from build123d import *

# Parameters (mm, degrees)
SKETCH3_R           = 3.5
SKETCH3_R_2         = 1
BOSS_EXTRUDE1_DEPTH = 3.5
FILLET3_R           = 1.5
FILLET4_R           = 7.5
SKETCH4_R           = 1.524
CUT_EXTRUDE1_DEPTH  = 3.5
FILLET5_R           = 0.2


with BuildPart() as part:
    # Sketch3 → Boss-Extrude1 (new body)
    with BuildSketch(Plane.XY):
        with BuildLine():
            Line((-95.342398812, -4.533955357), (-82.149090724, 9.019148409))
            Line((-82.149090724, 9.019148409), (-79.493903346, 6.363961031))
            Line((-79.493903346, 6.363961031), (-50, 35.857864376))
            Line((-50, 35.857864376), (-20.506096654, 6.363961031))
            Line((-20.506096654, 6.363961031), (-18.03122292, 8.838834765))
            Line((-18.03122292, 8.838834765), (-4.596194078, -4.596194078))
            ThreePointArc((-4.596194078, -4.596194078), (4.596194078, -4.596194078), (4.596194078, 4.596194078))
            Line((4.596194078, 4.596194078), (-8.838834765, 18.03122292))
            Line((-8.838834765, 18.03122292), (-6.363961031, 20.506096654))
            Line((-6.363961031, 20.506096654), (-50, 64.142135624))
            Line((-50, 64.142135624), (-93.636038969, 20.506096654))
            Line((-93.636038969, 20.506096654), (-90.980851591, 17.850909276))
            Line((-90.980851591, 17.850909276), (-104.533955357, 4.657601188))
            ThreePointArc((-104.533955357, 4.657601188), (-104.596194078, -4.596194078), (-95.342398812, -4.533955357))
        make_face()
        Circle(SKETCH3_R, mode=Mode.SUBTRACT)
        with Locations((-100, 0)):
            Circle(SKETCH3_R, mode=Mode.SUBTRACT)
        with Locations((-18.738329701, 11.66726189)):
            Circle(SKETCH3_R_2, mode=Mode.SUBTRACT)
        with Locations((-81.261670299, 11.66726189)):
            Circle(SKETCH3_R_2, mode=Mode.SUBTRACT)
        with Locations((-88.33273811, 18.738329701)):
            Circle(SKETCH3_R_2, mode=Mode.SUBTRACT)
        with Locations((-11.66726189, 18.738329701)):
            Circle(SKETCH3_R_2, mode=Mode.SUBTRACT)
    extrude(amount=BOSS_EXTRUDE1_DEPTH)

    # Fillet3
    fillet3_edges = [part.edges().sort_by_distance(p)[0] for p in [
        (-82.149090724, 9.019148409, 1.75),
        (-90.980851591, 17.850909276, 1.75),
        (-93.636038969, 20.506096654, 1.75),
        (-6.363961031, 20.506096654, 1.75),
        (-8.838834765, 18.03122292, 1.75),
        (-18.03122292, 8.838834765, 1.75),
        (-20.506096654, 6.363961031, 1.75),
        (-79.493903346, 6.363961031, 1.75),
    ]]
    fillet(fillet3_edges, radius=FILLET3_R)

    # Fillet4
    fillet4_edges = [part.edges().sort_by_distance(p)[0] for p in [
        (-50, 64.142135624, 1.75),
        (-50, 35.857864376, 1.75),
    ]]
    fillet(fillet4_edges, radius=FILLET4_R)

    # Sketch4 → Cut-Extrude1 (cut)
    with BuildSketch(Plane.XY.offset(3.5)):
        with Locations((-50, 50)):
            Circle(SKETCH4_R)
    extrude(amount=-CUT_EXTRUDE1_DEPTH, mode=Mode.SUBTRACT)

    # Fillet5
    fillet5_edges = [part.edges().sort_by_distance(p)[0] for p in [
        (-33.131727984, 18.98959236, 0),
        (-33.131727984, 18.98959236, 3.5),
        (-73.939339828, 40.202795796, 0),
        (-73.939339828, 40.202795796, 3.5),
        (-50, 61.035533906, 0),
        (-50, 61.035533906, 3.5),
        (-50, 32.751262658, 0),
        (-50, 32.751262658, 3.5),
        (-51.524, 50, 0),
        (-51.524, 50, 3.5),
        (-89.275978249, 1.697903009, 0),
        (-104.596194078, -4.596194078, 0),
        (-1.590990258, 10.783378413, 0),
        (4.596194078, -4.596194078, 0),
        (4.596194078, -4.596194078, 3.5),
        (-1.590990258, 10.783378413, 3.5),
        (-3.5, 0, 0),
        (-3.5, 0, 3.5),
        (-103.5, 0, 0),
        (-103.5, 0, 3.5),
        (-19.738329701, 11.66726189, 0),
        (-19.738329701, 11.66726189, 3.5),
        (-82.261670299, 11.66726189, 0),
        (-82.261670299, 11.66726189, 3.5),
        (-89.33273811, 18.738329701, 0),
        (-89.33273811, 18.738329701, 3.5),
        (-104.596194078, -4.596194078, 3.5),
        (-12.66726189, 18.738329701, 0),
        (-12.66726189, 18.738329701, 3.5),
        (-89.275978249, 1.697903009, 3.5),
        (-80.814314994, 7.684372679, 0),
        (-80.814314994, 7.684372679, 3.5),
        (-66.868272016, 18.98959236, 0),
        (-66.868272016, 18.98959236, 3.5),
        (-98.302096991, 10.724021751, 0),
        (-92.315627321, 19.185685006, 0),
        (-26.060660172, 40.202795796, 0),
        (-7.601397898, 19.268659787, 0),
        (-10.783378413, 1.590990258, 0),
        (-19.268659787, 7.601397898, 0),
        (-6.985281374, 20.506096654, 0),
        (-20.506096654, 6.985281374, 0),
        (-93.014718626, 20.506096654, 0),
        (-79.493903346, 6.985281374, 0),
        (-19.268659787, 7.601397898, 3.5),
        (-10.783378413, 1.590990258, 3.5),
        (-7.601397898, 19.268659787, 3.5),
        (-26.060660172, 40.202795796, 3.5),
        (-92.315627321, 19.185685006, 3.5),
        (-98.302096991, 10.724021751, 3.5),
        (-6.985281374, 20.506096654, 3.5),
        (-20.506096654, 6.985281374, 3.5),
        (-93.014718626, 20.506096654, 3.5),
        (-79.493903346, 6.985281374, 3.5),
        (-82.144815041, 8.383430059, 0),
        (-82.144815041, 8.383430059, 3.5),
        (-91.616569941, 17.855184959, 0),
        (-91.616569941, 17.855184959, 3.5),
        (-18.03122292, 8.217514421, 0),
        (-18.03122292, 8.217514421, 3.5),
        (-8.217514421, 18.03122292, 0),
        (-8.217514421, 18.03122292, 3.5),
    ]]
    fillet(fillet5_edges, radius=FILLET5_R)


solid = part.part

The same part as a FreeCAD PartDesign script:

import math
import FreeCAD as App
import Part
import Sketcher

V = App.Vector


def edges_at(feature, points):
    """Names of the edges that pass closest to the given points."""
    edges = feature.Shape.Edges
    near = lambda p: min(range(len(edges)), key=lambda i: edges[i].distToShape(Part.Vertex(*p))[0])
    return sorted({f"Edge{near(p) + 1}" for p in points})

doc = App.newDocument("Part")
body = doc.addObject("PartDesign::Body", "Body")

# Sketch on XY plane
sketch1 = doc.addObject("Sketcher::SketchObject", "Sketch")
body.addObject(sketch1)
sketch1.AttachmentSupport = (doc.XY_Plane, [""])
sketch1.MapMode = "FlatFace"
sketch1.addGeometry([
    Part.LineSegment(V(-95.3, -4.5, 0), V(-82.1, 9, 0)),  # 0
    Part.LineSegment(V(-82.1, 9, 0), V(-79.5, 6.4, 0)),  # 1
    Part.LineSegment(V(-79.5, 6.4, 0), V(-50, 35.9, 0)),  # 2
    Part.LineSegment(V(-50, 35.9, 0), V(-20.5, 6.4, 0)),  # 3
    Part.LineSegment(V(-20.5, 6.4, 0), V(-18, 8.8, 0)),  # 4
    Part.LineSegment(V(-18, 8.8, 0), V(-4.6, -4.6, 0)),  # 5
    Part.ArcOfCircle(Part.Circle(V(0, 0, 0), V(0, 0, 1), 6.5), math.radians(-135), math.radians(45)),  # 6
    Part.LineSegment(V(4.6, 4.6, 0), V(-8.8, 18, 0)),  # 7
    Part.LineSegment(V(-8.8, 18, 0), V(-6.4, 20.5, 0)),  # 8
    Part.LineSegment(V(-6.4, 20.5, 0), V(-50, 64.1, 0)),  # 9
    Part.LineSegment(V(-50, 64.1, 0), V(-93.6, 20.5, 0)),  # 10
    Part.LineSegment(V(-93.6, 20.5, 0), V(-91, 17.9, 0)),  # 11
    Part.LineSegment(V(-91, 17.9, 0), V(-104.5, 4.7, 0)),  # 12
    Part.ArcOfCircle(Part.Circle(V(-100, 0, 0), V(0, 0, 1), 6.5), math.radians(134), math.radians(316)),  # 13
    Part.Circle(V(-100, 0, 0), V(0, 0, 1), 3.5),  # 14
    Part.Circle(V(0, 0, 0), V(0, 0, 1), 3.5),  # 15
    Part.Circle(V(-81.3, 11.7, 0), V(0, 0, 1), 1),  # 16
    Part.Circle(V(-88.3, 18.7, 0), V(0, 0, 1), 1),  # 17
    Part.Circle(V(-18.7, 11.7, 0), V(0, 0, 1), 1),  # 18
    Part.Circle(V(-11.7, 18.7, 0), V(0, 0, 1), 1),  # 19
], False)
sketch1.addConstraint([
    Sketcher.Constraint("Coincident", 0, 2, 1, 1),
    Sketcher.Constraint("Coincident", 1, 2, 2, 1),
    Sketcher.Constraint("Coincident", 2, 2, 3, 1),
    Sketcher.Constraint("Coincident", 3, 2, 4, 1),
    Sketcher.Constraint("Coincident", 4, 2, 5, 1),
    Sketcher.Constraint("Tangent", 5, 2, 6, 1),
    Sketcher.Constraint("Tangent", 6, 2, 7, 1),
    Sketcher.Constraint("Coincident", 7, 2, 8, 1),
    Sketcher.Constraint("Coincident", 8, 2, 9, 1),
    Sketcher.Constraint("Coincident", 9, 2, 10, 1),
    Sketcher.Constraint("Coincident", 10, 2, 11, 1),
    Sketcher.Constraint("Coincident", 11, 2, 12, 1),
    Sketcher.Constraint("Tangent", 12, 2, 13, 1),
    Sketcher.Constraint("Tangent", 13, 2, 0, 1),
    Sketcher.Constraint("Coincident", 6, 3, -1, 1),
    Sketcher.Constraint("Coincident", 15, 3, -1, 1),
    Sketcher.Constraint("Coincident", 14, 3, 13, 3),
    Sketcher.Constraint("Equal", 6, 13),
    Sketcher.Constraint("Equal", 14, 15),
    Sketcher.Constraint("Equal", 16, 17),
    Sketcher.Constraint("Equal", 17, 18),
    Sketcher.Constraint("Equal", 18, 19),
    Sketcher.Constraint("PointOnObject", 13, 3, -1),
    Sketcher.Constraint("Perpendicular", 1, 2),
    Sketcher.Constraint("Perpendicular", 2, 3),
    Sketcher.Constraint("Perpendicular", 3, 4),
    Sketcher.Constraint("Perpendicular", 4, 5),
    Sketcher.Constraint("Parallel", 5, 7),
    Sketcher.Constraint("Perpendicular", 7, 8),
    Sketcher.Constraint("Perpendicular", 8, 9),
    Sketcher.Constraint("Perpendicular", 9, 10),
    Sketcher.Constraint("Perpendicular", 10, 11),
    Sketcher.Constraint("Horizontal", 16, 3, 18, 3),
    Sketcher.Constraint("Horizontal", 17, 3, 19, 3),
    Sketcher.Constraint("Horizontal", 1, 2, 3, 2),
    Sketcher.Constraint("Horizontal", 8, 2, 10, 2),
    Sketcher.Constraint("Vertical", 2, 2, 9, 2),
    Sketcher.Constraint("Equal", 2, 3),
    Sketcher.Constraint("Equal", 5, 7),
    Sketcher.Constraint("Equal", 4, 8),
    Sketcher.Constraint("Equal", 1, 11),
    Sketcher.Constraint("Equal", 0, 12),
    Sketcher.Constraint("Diameter", 14, 7.0),
    Sketcher.Constraint("Diameter", 16, 2.0),
    Sketcher.Constraint("Radius", 6, 6.5),
    Sketcher.Constraint("Distance", 5, 19.0),
    Sketcher.Constraint("DistanceX", 13, 3, -1, 1, 100.0),
    Sketcher.Constraint("Distance", 4, 3.5),
    Sketcher.Constraint("DistanceY", -1, 1, 12, 2, 4.657601),
    Sketcher.Constraint("DistanceY", 1, 2, 16, 3, 5.303301),
    Sketcher.Constraint("DistanceX", 19, 3, 8, 2, 5.303301),
    Sketcher.Constraint("DistanceX", 10, 2, 17, 3, 5.303301),
    Sketcher.Constraint("DistanceX", 16, 3, -1, 1, 81.26167),
    Sketcher.Constraint("DistanceY", -1, 1, 17, 3, 18.73833),
    Sketcher.Constraint("DistanceX", 18, 3, -1, 1, 18.73833),
])
pad1 = doc.addObject("PartDesign::Pad", "Pad")
body.addObject(pad1)
pad1.Profile = sketch1
pad1.Length = 3.5
doc.recompute()

fillet = doc.addObject("PartDesign::Fillet", "Fillet")
body.addObject(fillet)
fillet.Base = (pad1, edges_at(pad1, [
    (-82.149, 9.019, 1.75),
    (-90.981, 17.851, 1.75),
    (-93.636, 20.506, 1.75),
    (-6.364, 20.506, 1.75),
    (-8.839, 18.031, 1.75),
    (-18.031, 8.839, 1.75),
    (-20.506, 6.364, 1.75),
    (-79.494, 6.364, 1.75),
]))
fillet.Radius = 1.5
doc.recompute()

fillet2 = doc.addObject("PartDesign::Fillet", "Fillet001")
body.addObject(fillet2)
fillet2.Base = (fillet, edges_at(fillet, [(-50, 64.142, 1.75), (-50, 35.858, 1.75)]))
fillet2.Radius = 7.5

# Sketch on XY plane
sketch2 = doc.addObject("Sketcher::SketchObject", "Sketch001")
body.addObject(sketch2)
sketch2.AttachmentSupport = (doc.XY_Plane, [""])
sketch2.MapMode = "FlatFace"
sketch2.AttachmentOffset = App.Placement(V(0, 0, 3.5), App.Rotation())
sketch2.addGeometry(Part.Circle(V(-50, 50, 0), V(0, 0, 1), 1.5), False)
sketch2.addConstraint([
    Sketcher.Constraint("Diameter", 0, 3.048),
    Sketcher.Constraint("DistanceX", 0, 3, -1, 1, 50.0),
    Sketcher.Constraint("DistanceY", -1, 1, 0, 3, 50.0),
])
pocket1 = doc.addObject("PartDesign::Pocket", "Pocket")
body.addObject(pocket1)
pocket1.Profile = sketch2
pocket1.Length = 3.5
doc.recompute()

fillet3 = doc.addObject("PartDesign::Fillet", "Fillet002")
body.addObject(fillet3)
fillet3.Base = (pocket1, edges_at(pocket1, [
    (-33.132, 18.99, 0),
    (-33.132, 18.99, 3.5),
    (-73.939, 40.203, 0),
    (-73.939, 40.203, 3.5),
    (-50, 61.036, 0),
    (-50, 61.036, 3.5),
    (-50, 32.751, 0),
    (-50, 32.751, 3.5),
    (-51.524, 50, 0),
    (-51.524, 50, 3.5),
    (-89.276, 1.698, 0),
    (-104.596, -4.596, 0),
    (-1.591, 10.783, 0),
    (4.596, -4.596, 0),
    (4.596, -4.596, 3.5),
    (-1.591, 10.783, 3.5),
    (-3.5, 0, 0),
    (-3.5, 0, 3.5),
    (-103.5, 0, 0),
    (-103.5, 0, 3.5),
    (-19.738, 11.667, 0),
    (-19.738, 11.667, 3.5),
    (-82.262, 11.667, 0),
    (-82.262, 11.667, 3.5),
    (-89.333, 18.738, 0),
    (-89.333, 18.738, 3.5),
    (-104.596, -4.596, 3.5),
    (-12.667, 18.738, 0),
    (-12.667, 18.738, 3.5),
    (-89.276, 1.698, 3.5),
    (-80.814, 7.684, 0),
    (-80.814, 7.684, 3.5),
    (-66.868, 18.99, 0),
    (-66.868, 18.99, 3.5),
    (-98.302, 10.724, 0),
    (-92.316, 19.186, 0),
    (-26.061, 40.203, 0),
    (-7.601, 19.269, 0),
    (-10.783, 1.591, 0),
    (-19.269, 7.601, 0),
    (-6.985, 20.506, 0),
    (-20.506, 6.985, 0),
    (-93.015, 20.506, 0),
    (-79.494, 6.985, 0),
    (-19.269, 7.601, 3.5),
    (-10.783, 1.591, 3.5),
    (-7.601, 19.269, 3.5),
    (-26.061, 40.203, 3.5),
    (-92.316, 19.186, 3.5),
    (-98.302, 10.724, 3.5),
    (-6.985, 20.506, 3.5),
    (-20.506, 6.985, 3.5),
    (-93.015, 20.506, 3.5),
    (-79.494, 6.985, 3.5),
    (-82.145, 8.383, 0),
    (-82.145, 8.383, 3.5),
    (-91.617, 17.855, 0),
    (-91.617, 17.855, 3.5),
    (-18.031, 8.218, 0),
    (-18.031, 8.218, 3.5),
    (-8.218, 18.031, 0),
    (-8.218, 18.031, 3.5),
]))
fillet3.Radius = 0.2

doc.recompute()
